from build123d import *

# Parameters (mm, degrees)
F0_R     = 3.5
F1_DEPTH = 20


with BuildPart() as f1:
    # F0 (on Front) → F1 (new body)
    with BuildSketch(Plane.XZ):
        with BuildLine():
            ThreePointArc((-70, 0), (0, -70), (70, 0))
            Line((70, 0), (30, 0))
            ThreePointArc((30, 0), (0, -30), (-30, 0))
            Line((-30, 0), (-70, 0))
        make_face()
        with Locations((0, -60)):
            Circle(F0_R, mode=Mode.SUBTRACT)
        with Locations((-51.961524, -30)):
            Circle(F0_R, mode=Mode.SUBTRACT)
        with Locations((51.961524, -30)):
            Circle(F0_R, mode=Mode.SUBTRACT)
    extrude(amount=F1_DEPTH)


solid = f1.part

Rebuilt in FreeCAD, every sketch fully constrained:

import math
import FreeCAD as App
import Part
import Sketcher
from FreeCAD import Vector

doc = App.newDocument("Part")
body = doc.addObject("PartDesign::Body", "Body")

sketch1 = body.newObject("Sketcher::SketchObject", "Sketch")
sketch1.AttachmentSupport = (doc.getObject("XZ_Plane"), [""])
sketch1.MapMode = "FlatFace"
sketch1.addGeometry(Part.ArcOfCircle(Part.Circle(Vector(0, 0, 0), Vector(0, 0, 1), 70), math.radians(180), math.radians(360)), False)
sketch1.addGeometry(Part.LineSegment(Vector(70, 0, 0), Vector(30, 0, 0)), False)
sketch1.addGeometry(Part.ArcOfCircle(Part.Circle(Vector(0, 0, 0), Vector(0, 0, 1), 30), math.radians(180), math.radians(360)), False)
sketch1.addGeometry(Part.LineSegment(Vector(-30, 0, 0), Vector(-70, 0, 0)), False)
sketch1.addGeometry(Part.Circle(Vector(0, -60, 0), Vector(0, 0, 1), 3.5), False)
sketch1.addGeometry(Part.Circle(Vector(-52, -30, 0), Vector(0, 0, 1), 3.5), False)
sketch1.addGeometry(Part.Circle(Vector(52, -30, 0), Vector(0, 0, 1), 3.5), False)
sketch1.addConstraint(Sketcher.Constraint("Coincident", 0, 2, 1, 1))
sketch1.addConstraint(Sketcher.Constraint("Coincident", 1, 2, 2, 2))
sketch1.addConstraint(Sketcher.Constraint("Coincident", 2, 1, 3, 1))
sketch1.addConstraint(Sketcher.Constraint("Coincident", 3, 2, 0, 1))
sketch1.addConstraint(Sketcher.Constraint("Horizontal", 1))
sketch1.addConstraint(Sketcher.Constraint("Horizontal", 3))
sketch1.addConstraint(Sketcher.Constraint("Coincident", 0, 3, -1, 1))
sketch1.addConstraint(Sketcher.Constraint("Coincident", 2, 3, -1, 1))
sketch1.addConstraint(Sketcher.Constraint("Equal", 4, 5))
sketch1.addConstraint(Sketcher.Constraint("Equal", 5, 6))
sketch1.addConstraint(Sketcher.Constraint("Symmetric", 5, 3, 6, 3, -2))
sketch1.addConstraint(Sketcher.Constraint("PointOnObject", 4, 3, -2))
sketch1.addConstraint(Sketcher.Constraint("PointOnObject", 0, 2, -1))
sketch1.addConstraint(Sketcher.Constraint("PointOnObject", 2, 1, -1))
sketch1.addConstraint(Sketcher.Constraint("Diameter", 4, 7.0))
sketch1.addConstraint(Sketcher.Constraint("Radius", 0, 70.0))
sketch1.addConstraint(Sketcher.Constraint("Radius", 2, 30.0))
sketch1.addConstraint(Sketcher.Constraint("DistanceY", 4, 3, -1, 1, 60.0))
sketch1.addConstraint(Sketcher.Constraint("DistanceY", 5, 3, -1, 1, 30.0))
sketch1.addConstraint(Sketcher.Constraint("DistanceX", 5, 3, -1, 1, 51.961524))
pad1 = body.newObject("PartDesign::Pad", "Pad")
pad1.Profile = sketch1
pad1.Length = 20

doc.recompute()
